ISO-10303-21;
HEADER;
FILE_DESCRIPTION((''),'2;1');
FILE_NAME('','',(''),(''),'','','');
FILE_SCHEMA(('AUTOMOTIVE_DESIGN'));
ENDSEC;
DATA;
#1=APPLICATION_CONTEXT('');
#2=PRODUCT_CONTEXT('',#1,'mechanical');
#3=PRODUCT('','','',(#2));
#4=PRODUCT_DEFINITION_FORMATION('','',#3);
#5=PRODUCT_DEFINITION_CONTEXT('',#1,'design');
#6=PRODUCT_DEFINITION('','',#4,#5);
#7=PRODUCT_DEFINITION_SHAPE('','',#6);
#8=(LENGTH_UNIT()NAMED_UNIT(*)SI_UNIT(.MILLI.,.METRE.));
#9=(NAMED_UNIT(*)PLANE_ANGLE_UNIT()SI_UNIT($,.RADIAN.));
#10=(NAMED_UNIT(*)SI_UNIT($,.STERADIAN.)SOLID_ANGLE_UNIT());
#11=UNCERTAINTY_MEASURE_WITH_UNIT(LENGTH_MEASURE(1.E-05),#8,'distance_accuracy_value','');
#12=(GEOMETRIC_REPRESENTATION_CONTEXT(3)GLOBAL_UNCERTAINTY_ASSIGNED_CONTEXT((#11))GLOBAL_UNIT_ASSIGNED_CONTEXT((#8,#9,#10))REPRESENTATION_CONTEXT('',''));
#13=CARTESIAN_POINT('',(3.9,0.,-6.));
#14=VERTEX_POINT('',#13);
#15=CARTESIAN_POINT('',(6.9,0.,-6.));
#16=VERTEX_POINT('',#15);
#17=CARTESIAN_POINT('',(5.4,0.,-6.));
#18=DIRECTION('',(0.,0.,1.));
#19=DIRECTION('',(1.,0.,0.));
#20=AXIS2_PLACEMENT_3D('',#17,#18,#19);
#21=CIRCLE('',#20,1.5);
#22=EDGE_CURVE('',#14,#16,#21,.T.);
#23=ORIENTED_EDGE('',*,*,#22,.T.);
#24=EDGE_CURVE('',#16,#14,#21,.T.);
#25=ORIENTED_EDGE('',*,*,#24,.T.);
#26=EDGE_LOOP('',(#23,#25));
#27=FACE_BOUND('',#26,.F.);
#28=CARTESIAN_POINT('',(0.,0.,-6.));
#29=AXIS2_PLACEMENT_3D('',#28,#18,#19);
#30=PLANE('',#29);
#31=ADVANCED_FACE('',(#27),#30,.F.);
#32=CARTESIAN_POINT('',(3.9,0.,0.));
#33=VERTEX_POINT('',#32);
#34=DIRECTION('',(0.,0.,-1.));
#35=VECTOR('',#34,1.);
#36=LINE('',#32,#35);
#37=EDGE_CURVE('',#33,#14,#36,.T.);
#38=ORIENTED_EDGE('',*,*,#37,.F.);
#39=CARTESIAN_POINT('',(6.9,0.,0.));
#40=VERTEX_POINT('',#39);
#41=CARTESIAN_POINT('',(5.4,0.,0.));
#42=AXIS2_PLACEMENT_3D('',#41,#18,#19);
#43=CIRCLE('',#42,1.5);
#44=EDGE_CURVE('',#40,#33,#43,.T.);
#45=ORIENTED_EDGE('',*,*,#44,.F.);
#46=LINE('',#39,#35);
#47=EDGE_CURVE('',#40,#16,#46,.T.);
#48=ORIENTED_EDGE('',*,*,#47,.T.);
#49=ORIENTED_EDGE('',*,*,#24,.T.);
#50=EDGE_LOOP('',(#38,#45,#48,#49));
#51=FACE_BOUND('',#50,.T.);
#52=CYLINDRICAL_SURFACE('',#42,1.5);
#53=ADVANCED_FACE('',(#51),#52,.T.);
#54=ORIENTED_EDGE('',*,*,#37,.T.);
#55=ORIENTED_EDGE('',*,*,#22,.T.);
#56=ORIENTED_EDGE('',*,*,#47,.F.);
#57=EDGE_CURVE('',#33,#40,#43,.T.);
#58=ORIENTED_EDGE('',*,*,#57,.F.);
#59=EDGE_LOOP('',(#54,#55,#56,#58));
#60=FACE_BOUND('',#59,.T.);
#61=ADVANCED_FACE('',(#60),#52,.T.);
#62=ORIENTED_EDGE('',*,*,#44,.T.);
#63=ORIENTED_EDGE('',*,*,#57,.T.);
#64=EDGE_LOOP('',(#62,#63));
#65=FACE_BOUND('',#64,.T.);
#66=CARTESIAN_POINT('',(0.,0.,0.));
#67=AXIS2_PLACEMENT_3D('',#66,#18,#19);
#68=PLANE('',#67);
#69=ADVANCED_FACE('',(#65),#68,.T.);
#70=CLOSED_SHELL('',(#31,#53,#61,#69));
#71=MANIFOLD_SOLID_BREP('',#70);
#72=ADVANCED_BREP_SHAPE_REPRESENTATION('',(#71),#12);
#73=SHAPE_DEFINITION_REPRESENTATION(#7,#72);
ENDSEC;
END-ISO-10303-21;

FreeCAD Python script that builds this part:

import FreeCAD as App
import Part
import Sketcher
from FreeCAD import Vector

doc = App.newDocument("Part")
body = doc.addObject("PartDesign::Body", "Body")

# Sketch on XY plane
sketch1 = body.newObject("Sketcher::SketchObject", "Sketch")
sketch1.AttachmentSupport = (doc.getObject("XY_Plane"), [""])
sketch1.MapMode = "FlatFace"
sketch1.addGeometry(Part.Circle(Vector(5.4, 0, 0), Vector(0, 0, 1), 1.5), False)
sketch1.addConstraint(Sketcher.Constraint("PointOnObject", 0, 3, -1))
sketch1.addConstraint(Sketcher.Constraint("Diameter", 0, 3.0))
sketch1.addConstraint(Sketcher.Constraint("DistanceX", -1, 1, 0, 3, 5.4))
pad1 = body.newObject("PartDesign::Pad", "Pad")
pad1.Profile = sketch1
pad1.Length = 6
pad1.Reversed = True

doc.recompute()
